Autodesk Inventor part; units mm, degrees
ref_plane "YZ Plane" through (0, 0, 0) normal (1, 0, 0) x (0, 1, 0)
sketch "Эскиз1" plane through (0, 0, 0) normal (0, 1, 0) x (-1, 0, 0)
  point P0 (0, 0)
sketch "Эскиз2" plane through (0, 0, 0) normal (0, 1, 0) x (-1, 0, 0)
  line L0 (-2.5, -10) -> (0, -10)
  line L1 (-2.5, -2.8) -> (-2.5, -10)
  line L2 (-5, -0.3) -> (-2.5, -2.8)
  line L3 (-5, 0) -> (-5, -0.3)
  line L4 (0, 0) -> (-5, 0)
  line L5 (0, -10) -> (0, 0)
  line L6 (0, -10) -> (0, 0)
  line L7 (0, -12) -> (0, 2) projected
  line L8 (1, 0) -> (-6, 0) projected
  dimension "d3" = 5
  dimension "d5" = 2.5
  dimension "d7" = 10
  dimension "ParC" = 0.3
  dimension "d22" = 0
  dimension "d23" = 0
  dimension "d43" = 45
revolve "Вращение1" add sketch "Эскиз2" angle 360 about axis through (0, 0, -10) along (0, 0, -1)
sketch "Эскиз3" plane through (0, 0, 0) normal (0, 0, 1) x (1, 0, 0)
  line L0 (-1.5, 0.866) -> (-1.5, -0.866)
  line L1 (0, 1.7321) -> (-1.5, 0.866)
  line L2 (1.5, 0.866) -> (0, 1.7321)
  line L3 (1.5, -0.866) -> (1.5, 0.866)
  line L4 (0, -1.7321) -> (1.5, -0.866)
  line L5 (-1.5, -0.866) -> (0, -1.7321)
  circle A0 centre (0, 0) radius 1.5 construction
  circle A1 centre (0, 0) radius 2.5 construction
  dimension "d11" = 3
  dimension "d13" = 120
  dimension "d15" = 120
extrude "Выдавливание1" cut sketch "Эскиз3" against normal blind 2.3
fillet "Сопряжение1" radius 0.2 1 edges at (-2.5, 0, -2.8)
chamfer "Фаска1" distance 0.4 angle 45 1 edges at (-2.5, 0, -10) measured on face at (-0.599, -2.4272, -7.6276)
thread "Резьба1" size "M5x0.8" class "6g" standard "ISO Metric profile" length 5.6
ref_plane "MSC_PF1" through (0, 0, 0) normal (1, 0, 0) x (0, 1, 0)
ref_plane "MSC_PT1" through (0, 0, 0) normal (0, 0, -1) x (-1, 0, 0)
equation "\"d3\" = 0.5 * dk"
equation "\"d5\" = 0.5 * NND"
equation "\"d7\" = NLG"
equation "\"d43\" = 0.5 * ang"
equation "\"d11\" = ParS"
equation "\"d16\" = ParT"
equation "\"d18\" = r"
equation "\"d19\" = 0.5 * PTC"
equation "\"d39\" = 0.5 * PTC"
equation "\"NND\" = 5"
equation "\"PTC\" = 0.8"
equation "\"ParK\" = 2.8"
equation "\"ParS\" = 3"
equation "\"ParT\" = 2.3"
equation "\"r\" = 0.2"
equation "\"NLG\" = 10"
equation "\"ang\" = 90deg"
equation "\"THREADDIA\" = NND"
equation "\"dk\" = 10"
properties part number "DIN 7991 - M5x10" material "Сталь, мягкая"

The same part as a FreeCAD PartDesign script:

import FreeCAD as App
import Part
import Sketcher

V = App.Vector
Q = App.Units.Quantity


def edges_at(feature, points):
    """Names of the edges that pass closest to the given points."""
    edges = feature.Shape.Edges
    near = lambda p: min(range(len(edges)), key=lambda i: edges[i].distToShape(Part.Vertex(*p))[0])
    return sorted({f"Edge{near(p) + 1}" for p in points})


def add_polygon(sketch, points):
    """Adds a closed chain of lines whose ends are joined by coincident constraints."""
    first, n = sketch.GeometryCount, len(points)
    for a, b in zip(points, points[1:] + points[:1]):
        sketch.addGeometry(Part.LineSegment(App.Vector(*a, 0), App.Vector(*b, 0)), False)
    for i in range(n):
        sketch.addConstraint(Sketcher.Constraint("Coincident", first + i, 2, first + (i + 1) % n, 1))

doc = App.newDocument("Part")
body = doc.addObject("PartDesign::Body", "Body")

sketch1 = body.newObject("Sketcher::SketchObject", "Sketch")
sketch1.AttachmentSupport = (doc.getObject("XZ_Plane"), [""])
sketch1.MapMode = "FlatFace"
add_polygon(sketch1, [(2.5, -2.8), (2.5, -10), (0, -10), (0, 0), (5, 0), (5, -0.3)])
sketch1.addConstraint([
    Sketcher.Constraint("Vertical", 0),
    Sketcher.Constraint("Horizontal", 1),
    Sketcher.Constraint("Vertical", 2),
    Sketcher.Constraint("Horizontal", 3),
    Sketcher.Constraint("Vertical", 4),
    Sketcher.Constraint("Coincident", 2, 2, -1, 1),
    Sketcher.Constraint("DistanceX", 3, 1, 3, 2, Q("5 mm")),
    Sketcher.Constraint("DistanceY", 2, 1, 2, 2, Q("10 mm")),
    Sketcher.Constraint("DistanceX", 1, 2, 1, 1, Q("2.5 mm")),
    Sketcher.Constraint("DistanceY", 4, 2, 4, 1, Q("0.3 mm")),
    Sketcher.Constraint("DistanceY", 5, 2, 4, 2, Q("2.5 mm")),
])
revolution = body.newObject("PartDesign::Revolution", "Revolution")
revolution.Profile = sketch1
revolution.ReferenceAxis = (sketch1, ["V_Axis"])
revolution.Angle = 360

sketch2 = body.newObject("Sketcher::SketchObject", "Sketch001")
sketch2.AttachmentSupport = (doc.getObject("XY_Plane"), [""])
sketch2.MapMode = "FlatFace"
add_polygon(sketch2, [(0, 1.7), (-1.5, 0.9), (-1.5, -0.9), (0, -1.7), (1.5, -0.9), (1.5, 0.9)])
sketch2.addConstraint([
    Sketcher.Constraint("Vertical", 1),
    Sketcher.Constraint("Vertical", 4),
    Sketcher.Constraint("Symmetric", 0, 2, 3, 2, -1, 1),
    Sketcher.Constraint("Symmetric", 2, 2, 5, 2, -1, 1),
    Sketcher.Constraint("PointOnObject", 2, 2, -2),
    Sketcher.Constraint("Parallel", 2, 5),
    Sketcher.Constraint("Horizontal", 1, 2, 3, 2),
    Sketcher.Constraint("DistanceX", 1, 2, 3, 2, Q("3 mm")),
    Sketcher.Constraint("DistanceY", 1, 2, 1, 1, Q("1.732 mm")),
    Sketcher.Constraint("Distance", 0, Q("1.732 mm")),
])
pocket1 = body.newObject("PartDesign::Pocket", "Pocket")
pocket1.Profile = sketch2
pocket1.Length = 2.3
doc.recompute()

fillet = body.newObject("PartDesign::Fillet", "Fillet")
fillet.Base = (pocket1, edges_at(pocket1, [(-2.5, 0, -2.8)]))
fillet.Radius = 0.2
doc.recompute()

chamfer = body.newObject("PartDesign::Chamfer", "Chamfer")
chamfer.Base = (fillet, edges_at(fillet, [(-2.5, 0, -10)]))
chamfer.Size = 0.4

doc.recompute()
